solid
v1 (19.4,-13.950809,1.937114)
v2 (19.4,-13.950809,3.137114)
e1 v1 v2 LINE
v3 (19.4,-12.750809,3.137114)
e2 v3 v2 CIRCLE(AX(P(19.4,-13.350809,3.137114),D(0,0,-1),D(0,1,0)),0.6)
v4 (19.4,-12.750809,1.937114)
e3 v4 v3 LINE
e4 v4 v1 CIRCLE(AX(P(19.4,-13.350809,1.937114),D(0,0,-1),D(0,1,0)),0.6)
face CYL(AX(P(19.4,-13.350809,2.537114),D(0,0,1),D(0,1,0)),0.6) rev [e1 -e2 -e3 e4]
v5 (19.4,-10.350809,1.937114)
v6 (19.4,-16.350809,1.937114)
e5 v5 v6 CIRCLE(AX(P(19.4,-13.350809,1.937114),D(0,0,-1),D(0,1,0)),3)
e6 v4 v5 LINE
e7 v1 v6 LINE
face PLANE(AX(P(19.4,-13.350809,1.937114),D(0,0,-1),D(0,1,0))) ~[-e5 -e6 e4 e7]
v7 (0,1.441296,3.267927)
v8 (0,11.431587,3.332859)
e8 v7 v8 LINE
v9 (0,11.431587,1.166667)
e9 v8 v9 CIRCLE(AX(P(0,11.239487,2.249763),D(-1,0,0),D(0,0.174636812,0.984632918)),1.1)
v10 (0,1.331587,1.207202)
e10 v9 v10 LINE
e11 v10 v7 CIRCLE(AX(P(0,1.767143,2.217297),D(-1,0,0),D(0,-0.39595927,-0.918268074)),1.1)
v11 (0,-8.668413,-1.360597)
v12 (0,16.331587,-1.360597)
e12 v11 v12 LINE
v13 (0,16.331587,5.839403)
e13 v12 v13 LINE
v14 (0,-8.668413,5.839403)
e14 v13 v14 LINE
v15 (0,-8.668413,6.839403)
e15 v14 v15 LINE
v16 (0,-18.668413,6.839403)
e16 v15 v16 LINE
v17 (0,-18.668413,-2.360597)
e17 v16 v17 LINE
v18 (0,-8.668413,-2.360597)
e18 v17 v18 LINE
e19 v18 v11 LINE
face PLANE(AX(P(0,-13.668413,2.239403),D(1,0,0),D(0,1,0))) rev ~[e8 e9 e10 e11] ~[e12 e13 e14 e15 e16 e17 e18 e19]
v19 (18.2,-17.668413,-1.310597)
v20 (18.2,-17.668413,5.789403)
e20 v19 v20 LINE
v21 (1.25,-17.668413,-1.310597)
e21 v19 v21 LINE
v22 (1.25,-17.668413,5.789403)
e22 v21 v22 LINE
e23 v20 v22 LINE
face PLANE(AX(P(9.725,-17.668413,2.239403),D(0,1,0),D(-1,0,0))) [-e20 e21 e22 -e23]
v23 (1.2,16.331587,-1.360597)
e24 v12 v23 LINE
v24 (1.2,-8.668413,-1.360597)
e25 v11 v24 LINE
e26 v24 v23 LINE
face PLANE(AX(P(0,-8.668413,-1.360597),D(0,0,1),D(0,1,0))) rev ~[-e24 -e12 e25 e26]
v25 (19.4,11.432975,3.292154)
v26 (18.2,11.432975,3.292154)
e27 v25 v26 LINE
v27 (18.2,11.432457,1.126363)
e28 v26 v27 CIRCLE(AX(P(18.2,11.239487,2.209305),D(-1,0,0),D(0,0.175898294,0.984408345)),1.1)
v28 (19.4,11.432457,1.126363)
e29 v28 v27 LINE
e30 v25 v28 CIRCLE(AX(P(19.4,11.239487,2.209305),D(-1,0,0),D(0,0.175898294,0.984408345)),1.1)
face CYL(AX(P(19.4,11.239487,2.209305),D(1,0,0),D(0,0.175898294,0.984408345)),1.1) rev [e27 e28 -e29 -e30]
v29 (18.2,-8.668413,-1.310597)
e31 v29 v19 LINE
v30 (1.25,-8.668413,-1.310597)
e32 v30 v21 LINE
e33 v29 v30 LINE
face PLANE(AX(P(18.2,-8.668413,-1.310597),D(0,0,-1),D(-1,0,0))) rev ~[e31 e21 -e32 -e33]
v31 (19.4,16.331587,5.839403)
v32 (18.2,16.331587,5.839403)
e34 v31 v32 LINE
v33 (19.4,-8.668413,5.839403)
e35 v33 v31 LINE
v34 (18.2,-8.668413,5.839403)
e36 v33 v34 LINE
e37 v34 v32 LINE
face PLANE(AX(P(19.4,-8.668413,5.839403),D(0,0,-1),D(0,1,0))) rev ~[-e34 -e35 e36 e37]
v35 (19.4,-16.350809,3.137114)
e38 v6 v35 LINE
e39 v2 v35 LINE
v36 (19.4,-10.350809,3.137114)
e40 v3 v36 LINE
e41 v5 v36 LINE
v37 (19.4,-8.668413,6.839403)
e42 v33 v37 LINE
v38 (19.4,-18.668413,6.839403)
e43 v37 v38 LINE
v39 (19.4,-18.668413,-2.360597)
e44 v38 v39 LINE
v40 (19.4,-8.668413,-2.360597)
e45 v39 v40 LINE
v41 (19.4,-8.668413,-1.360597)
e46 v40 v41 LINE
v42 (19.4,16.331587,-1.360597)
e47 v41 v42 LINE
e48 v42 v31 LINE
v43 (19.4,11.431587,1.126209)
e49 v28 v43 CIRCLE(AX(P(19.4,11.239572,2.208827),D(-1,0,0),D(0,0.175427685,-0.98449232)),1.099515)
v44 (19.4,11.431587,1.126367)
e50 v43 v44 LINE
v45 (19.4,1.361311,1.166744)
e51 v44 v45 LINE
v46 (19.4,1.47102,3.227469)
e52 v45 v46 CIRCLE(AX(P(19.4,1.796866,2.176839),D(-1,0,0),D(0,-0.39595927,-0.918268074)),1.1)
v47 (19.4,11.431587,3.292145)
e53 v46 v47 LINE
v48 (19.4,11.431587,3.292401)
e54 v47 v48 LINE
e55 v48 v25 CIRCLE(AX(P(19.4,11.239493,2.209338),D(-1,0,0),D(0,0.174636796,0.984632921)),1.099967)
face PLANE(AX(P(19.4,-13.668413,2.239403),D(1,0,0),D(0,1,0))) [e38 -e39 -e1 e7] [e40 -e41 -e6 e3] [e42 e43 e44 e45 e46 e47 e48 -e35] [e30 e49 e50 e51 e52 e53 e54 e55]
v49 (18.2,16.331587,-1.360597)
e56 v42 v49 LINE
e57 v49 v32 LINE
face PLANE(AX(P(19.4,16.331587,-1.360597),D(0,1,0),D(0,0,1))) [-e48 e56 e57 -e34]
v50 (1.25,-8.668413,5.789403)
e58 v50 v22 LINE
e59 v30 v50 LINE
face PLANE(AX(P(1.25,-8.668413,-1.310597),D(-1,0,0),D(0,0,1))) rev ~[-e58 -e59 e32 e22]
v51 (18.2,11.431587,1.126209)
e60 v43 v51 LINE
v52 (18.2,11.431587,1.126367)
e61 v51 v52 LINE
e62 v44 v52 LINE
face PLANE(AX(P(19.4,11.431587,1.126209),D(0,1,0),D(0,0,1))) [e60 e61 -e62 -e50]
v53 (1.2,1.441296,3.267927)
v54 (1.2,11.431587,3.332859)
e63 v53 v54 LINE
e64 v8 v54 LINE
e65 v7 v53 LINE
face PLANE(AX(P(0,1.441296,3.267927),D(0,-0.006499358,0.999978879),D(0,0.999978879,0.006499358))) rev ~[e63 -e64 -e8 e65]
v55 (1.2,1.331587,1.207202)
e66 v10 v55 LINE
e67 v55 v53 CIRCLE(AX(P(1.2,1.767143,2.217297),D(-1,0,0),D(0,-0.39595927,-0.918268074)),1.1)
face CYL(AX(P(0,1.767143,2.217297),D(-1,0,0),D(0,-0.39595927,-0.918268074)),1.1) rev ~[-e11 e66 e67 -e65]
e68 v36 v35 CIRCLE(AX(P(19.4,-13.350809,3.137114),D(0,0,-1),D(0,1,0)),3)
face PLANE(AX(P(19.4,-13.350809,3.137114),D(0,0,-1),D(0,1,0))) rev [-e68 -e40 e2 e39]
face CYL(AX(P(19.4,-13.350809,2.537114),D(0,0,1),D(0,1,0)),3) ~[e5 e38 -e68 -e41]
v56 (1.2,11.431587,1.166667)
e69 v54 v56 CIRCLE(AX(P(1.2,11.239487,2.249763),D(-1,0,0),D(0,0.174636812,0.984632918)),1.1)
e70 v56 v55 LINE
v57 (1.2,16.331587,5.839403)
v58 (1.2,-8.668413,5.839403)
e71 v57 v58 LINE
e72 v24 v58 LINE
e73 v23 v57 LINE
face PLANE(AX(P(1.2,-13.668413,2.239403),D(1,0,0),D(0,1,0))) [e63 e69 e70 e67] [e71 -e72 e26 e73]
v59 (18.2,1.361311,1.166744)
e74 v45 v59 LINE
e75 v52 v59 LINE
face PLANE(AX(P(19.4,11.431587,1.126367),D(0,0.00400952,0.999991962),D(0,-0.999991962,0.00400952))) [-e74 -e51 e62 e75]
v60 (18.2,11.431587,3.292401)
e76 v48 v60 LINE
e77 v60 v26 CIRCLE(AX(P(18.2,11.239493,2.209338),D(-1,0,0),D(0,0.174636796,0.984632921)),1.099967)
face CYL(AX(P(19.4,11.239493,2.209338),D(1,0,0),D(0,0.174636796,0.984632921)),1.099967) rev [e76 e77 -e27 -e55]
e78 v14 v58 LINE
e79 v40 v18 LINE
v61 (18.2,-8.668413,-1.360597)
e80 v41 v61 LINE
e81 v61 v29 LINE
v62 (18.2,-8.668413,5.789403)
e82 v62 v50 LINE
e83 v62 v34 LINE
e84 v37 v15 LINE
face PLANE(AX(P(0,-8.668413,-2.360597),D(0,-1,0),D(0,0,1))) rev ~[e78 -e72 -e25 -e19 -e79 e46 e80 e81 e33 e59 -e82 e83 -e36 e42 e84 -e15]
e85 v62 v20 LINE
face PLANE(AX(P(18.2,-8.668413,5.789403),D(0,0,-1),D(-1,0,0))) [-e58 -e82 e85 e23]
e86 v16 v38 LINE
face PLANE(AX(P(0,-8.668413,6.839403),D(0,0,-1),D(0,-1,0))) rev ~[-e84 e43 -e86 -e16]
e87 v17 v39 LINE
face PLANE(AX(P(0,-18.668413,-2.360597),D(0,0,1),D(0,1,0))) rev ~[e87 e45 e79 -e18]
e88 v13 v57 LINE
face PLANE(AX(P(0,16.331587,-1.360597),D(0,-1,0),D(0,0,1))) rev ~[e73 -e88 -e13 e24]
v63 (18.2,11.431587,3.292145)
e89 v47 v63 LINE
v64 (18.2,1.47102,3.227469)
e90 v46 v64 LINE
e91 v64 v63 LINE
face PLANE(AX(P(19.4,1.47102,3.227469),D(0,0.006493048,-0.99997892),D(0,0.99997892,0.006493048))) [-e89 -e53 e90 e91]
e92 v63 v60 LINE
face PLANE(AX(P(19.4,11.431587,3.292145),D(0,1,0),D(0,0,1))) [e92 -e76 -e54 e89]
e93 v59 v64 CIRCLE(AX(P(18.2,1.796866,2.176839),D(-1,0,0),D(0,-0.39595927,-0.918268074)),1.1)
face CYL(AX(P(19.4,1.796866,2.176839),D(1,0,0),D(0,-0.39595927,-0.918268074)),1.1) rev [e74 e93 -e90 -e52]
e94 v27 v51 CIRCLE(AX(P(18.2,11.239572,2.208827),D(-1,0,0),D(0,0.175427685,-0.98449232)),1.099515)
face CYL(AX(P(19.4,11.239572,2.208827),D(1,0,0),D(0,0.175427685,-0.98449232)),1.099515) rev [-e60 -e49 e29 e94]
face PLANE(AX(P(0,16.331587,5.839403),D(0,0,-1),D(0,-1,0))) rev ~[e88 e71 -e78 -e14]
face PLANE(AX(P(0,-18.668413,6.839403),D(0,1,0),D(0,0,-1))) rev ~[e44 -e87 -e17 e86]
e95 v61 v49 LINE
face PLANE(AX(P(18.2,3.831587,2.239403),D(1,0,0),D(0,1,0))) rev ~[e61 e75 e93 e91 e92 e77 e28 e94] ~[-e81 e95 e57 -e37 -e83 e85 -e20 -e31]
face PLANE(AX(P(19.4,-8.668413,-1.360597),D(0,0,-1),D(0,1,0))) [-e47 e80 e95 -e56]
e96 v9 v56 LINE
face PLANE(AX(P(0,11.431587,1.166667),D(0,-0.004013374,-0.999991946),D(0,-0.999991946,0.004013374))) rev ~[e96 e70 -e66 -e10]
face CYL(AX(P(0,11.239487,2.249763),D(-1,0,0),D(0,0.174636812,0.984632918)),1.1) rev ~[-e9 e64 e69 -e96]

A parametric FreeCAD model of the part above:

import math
import FreeCAD as App
import Part
import Sketcher
Q = App.Units.Quantity


def add_polygon(sketch, points):
    """Adds a closed chain of lines whose ends are joined by coincident constraints."""
    first, n = sketch.GeometryCount, len(points)
    for a, b in zip(points, points[1:] + points[:1]):
        sketch.addGeometry(Part.LineSegment(App.Vector(*a, 0), App.Vector(*b, 0)), False)
    for i in range(n):
        sketch.addConstraint(Sketcher.Constraint("Coincident", first + i, 2, first + (i + 1) % n, 1))

doc = App.newDocument("Part")
body = doc.addObject("PartDesign::Body", "Body")

sketch1 = body.newObject("Sketcher::SketchObject", "Sketch")
sketch1.AttachmentSupport = (doc.getObject("YZ_Plane"), [""])
sketch1.MapMode = "FlatFace"
add_polygon(sketch1, [(-9, 7), (-19, 7), (-19, -2), (-9, -2)])
sketch1.addConstraint(Sketcher.Constraint("Horizontal", 0))
sketch1.addConstraint(Sketcher.Constraint("Vertical", 1))
sketch1.addConstraint(Sketcher.Constraint("Horizontal", 2))
sketch1.addConstraint(Sketcher.Constraint("Vertical", 3))
sketch1.addConstraint(Sketcher.Constraint("DistanceX", 0, 2, 0, 1, Q("10 mm")))
sketch1.addConstraint(Sketcher.Constraint("DistanceY", 1, 2, 1, 1, Q("9.2 mm")))
sketch1.addConstraint(Sketcher.Constraint("DistanceX", 0, 2, -1, 1, Q("18.668413 mm")))
sketch1.addConstraint(Sketcher.Constraint("DistanceY", -1, 1, 0, 2, Q("6.839403 mm")))
pad1 = body.newObject("PartDesign::Pad", "Pad")
pad1.Profile = sketch1
pad1.Length = 19.4

sketch2 = body.newObject("Sketcher::SketchObject", "Sketch001")
sketch2.AttachmentSupport = (doc.getObject("YZ_Plane"), [""])
sketch2.MapMode = "FlatFace"
add_polygon(sketch2, [(-8.7, 6.8), (-18.7, 6.8), (-18.7, -2.4), (-8.7, -2.4), (-8.7, -1.4), (16.3, -1.4), (16.3, 5.8), (-8.7, 5.8)])
sketch2.addGeometry(Part.LineSegment(App.Vector(11.4, 1.2, 0), App.Vector(1.3, 1.2, 0)), False)
sketch2.addGeometry(Part.ArcOfCircle(Part.Circle(App.Vector(1.8, 2.2, 0), App.Vector(0, 0, 1), 1.1), math.radians(107), math.radians(247)), False)
sketch2.addGeometry(Part.LineSegment(App.Vector(1.4, 3.3, 0), App.Vector(11.4, 3.3, 0)), False)
sketch2.addGeometry(Part.ArcOfCircle(Part.Circle(App.Vector(11.2, 2.2, 0), App.Vector(0, 0, 1), 1.1), math.radians(-80), math.radians(80)), False)
sketch2.addConstraint(Sketcher.Constraint("Coincident", 8, 2, 9, 2))
sketch2.addConstraint(Sketcher.Constraint("Coincident", 9, 1, 10, 1))
sketch2.addConstraint(Sketcher.Constraint("Coincident", 10, 2, 11, 2))
sketch2.addConstraint(Sketcher.Constraint("Coincident", 11, 1, 8, 1))
sketch2.addConstraint(Sketcher.Constraint("Horizontal", 0))
sketch2.addConstraint(Sketcher.Constraint("Vertical", 1))
sketch2.addConstraint(Sketcher.Constraint("Horizontal", 2))
sketch2.addConstraint(Sketcher.Constraint("Vertical", 3))
sketch2.addConstraint(Sketcher.Constraint("Horizontal", 4))
sketch2.addConstraint(Sketcher.Constraint("Vertical", 5))
sketch2.addConstraint(Sketcher.Constraint("Horizontal", 6))
sketch2.addConstraint(Sketcher.Constraint("Vertical", 7))
sketch2.addConstraint(Sketcher.Constraint("Equal", 9, 11))
sketch2.addConstraint(Sketcher.Constraint("Vertical", 3, 2, 6, 2))
sketch2.addConstraint(Sketcher.Constraint("Vertical", 10, 2, 11, 1))
sketch2.addConstraint(Sketcher.Constraint("Equal", 3, 7))
sketch2.addConstraint(Sketcher.Constraint("Radius", 9, Q("1.1 mm")))
sketch2.addConstraint(Sketcher.Constraint("DistanceX", 0, 2, 0, 1, Q("10 mm")))
sketch2.addConstraint(Sketcher.Constraint("DistanceX", 4, 1, 4, 2, Q("25 mm")))
sketch2.addConstraint(Sketcher.Constraint("DistanceY", 3, 1, 3, 2, Q("1 mm")))
sketch2.addConstraint(Sketcher.Constraint("DistanceY", 1, 2, 1, 1, Q("9.2 mm")))
sketch2.addConstraint(Sketcher.Constraint("DistanceX", 3, 2, 8, 2, Q("10 mm")))
sketch2.addConstraint(Sketcher.Constraint("DistanceX", 10, 2, 5, 2, Q("4.9 mm")))
sketch2.addConstraint(Sketcher.Constraint("DistanceX", 0, 2, 11, 3, Q("29.9079 mm")))
sketch2.addConstraint(Sketcher.Constraint("DistanceY", 3, 2, 8, 2, Q("2.5678 mm")))
sketch2.addConstraint(Sketcher.Constraint("DistanceY", -1, 1, 10, 2, Q("3.332859 mm")))
sketch2.addConstraint(Sketcher.Constraint("DistanceY", 11, 3, 0, 2, Q("4.58964 mm")))
sketch2.addConstraint(Sketcher.Constraint("DistanceY", 9, 3, 9, 1, Q("1.05063 mm")))
sketch2.addConstraint(Sketcher.Constraint("DistanceX", 8, 2, 9, 1, Q("0.109709 mm")))
sketch2.addConstraint(Sketcher.Constraint("DistanceX", -1, 1, 9, 3, Q("1.767143 mm")))
pad2 = body.newObject("PartDesign::Pad", "Pad001")
pad2.Profile = sketch2
pad2.Length = 1.2

sketch3 = body.newObject("Sketcher::SketchObject", "Sketch002")
sketch3.AttachmentSupport = (doc.getObject("YZ_Plane"), [""])
sketch3.MapMode = "FlatFace"
sketch3.AttachmentOffset = App.Placement(App.Vector(0, 0, 19.4), App.Rotation())
add_polygon(sketch3, [(-8.66841, 5.8394), (-8.66841, -1.3606), (16.33159, -1.3606), (16.33159, 5.8394)])
sketch3.addGeometry(Part.LineSegment(App.Vector(11.43159, 1.12637, 0), App.Vector(1.36131, 1.16674, 0)), False)
sketch3.addGeometry(Part.ArcOfCircle(Part.Circle(App.Vector(1.79687, 2.17684, 0), App.Vector(0, 0, 1), 1.1), math.radians(107), math.radians(247)), False)
sketch3.addGeometry(Part.LineSegment(App.Vector(1.47102, 3.22747, 0), App.Vector(11.43159, 3.29215, 0)), False)
sketch3.addGeometry(Part.LineSegment(App.Vector(11.43159, 3.29215, 0), App.Vector(11.43159, 3.2924, 0)), False)
sketch3.addGeometry(Part.ArcOfCircle(Part.Circle(App.Vector(11.23949, 2.20934, 0), App.Vector(0, 0, 1), 1.09997), math.radians(79.87), math.radians(79.94)), False)
sketch3.addGeometry(Part.ArcOfCircle(Part.Circle(App.Vector(11.23949, 2.2093, 0), App.Vector(0, 0, 1), 1.1), math.radians(-80), math.radians(80)), False)
sketch3.addGeometry(Part.ArcOfCircle(Part.Circle(App.Vector(11.23957, 2.20883, 0), App.Vector(0, 0, 1), 1.09951), math.radians(-79.94), math.radians(-79.9)), False)
sketch3.addGeometry(Part.LineSegment(App.Vector(11.43159, 1.12621, 0), App.Vector(11.43159, 1.12637, 0)), False)
sketch3.addConstraint(Sketcher.Constraint("Coincident", 4, 2, 5, 2))
sketch3.addConstraint(Sketcher.Constraint("Coincident", 5, 1, 6, 1))
sketch3.addConstraint(Sketcher.Constraint("Coincident", 6, 2, 7, 1))
sketch3.addConstraint(Sketcher.Constraint("Coincident", 7, 2, 8, 2))
sketch3.addConstraint(Sketcher.Constraint("Tangent", 8, 1, 9, 2))
sketch3.addConstraint(Sketcher.Constraint("Tangent", 9, 1, 10, 2))
sketch3.addConstraint(Sketcher.Constraint("Coincident", 10, 1, 11, 1))
sketch3.addConstraint(Sketcher.Constraint("Coincident", 11, 2, 4, 1))
sketch3.addConstraint(Sketcher.Constraint("Vertical", 0))
sketch3.addConstraint(Sketcher.Constraint("Horizontal", 1))
sketch3.addConstraint(Sketcher.Constraint("Vertical", 2))
sketch3.addConstraint(Sketcher.Constraint("Horizontal", 3))
sketch3.addConstraint(Sketcher.Constraint("Vertical", 7))
sketch3.addConstraint(Sketcher.Constraint("Vertical", 11))
sketch3.addConstraint(Sketcher.Constraint("Equal", 5, 9))
sketch3.addConstraint(Sketcher.Constraint("Vertical", 7, 2, 10, 1))
sketch3.addConstraint(Sketcher.Constraint("Radius", 5, Q("1.1 mm")))
sketch3.addConstraint(Sketcher.Constraint("DistanceX", 1, 1, 1, 2, Q("25 mm")))
sketch3.addConstraint(Sketcher.Constraint("DistanceY", 0, 2, 0, 1, Q("7.2 mm")))
sketch3.addConstraint(Sketcher.Constraint("DistanceX", 6, 2, 2, 2, Q("4.9 mm")))
sketch3.addConstraint(Sketcher.Constraint("Radius", 8, Q("1.099967 mm")))
sketch3.addConstraint(Sketcher.Constraint("Radius", 10, Q("1.099515 mm")))
sketch3.addConstraint(Sketcher.Constraint("DistanceY", 7, 2, 2, 2, Q("2.547002 mm")))
sketch3.addConstraint(Sketcher.Constraint("DistanceY", 11, 1, 11, 2, Q("0.000158 mm")))
sketch3.addConstraint(Sketcher.Constraint("DistanceY", -1, 1, 7, 2, Q("3.292401 mm")))
sketch3.addConstraint(Sketcher.Constraint("DistanceY", 5, 3, 8, 3, Q("0.032499 mm")))
sketch3.addConstraint(Sketcher.Constraint("DistanceX", 0, 2, 9, 3, Q("19.9079 mm")))
sketch3.addConstraint(Sketcher.Constraint("DistanceY", 7, 1, 7, 2, Q("0.000256 mm")))
sketch3.addConstraint(Sketcher.Constraint("DistanceX", -1, 1, 10, 3, Q("11.239572 mm")))
sketch3.addConstraint(Sketcher.Constraint("DistanceX", -1, 1, 4, 2, Q("1.361311 mm")))
sketch3.addConstraint(Sketcher.Constraint("DistanceX", -1, 1, 5, 1, Q("1.47102 mm")))
sketch3.addConstraint(Sketcher.Constraint("DistanceY", -1, 1, 5, 1, Q("3.227469 mm")))
sketch3.addConstraint(Sketcher.Constraint("DistanceX", 9, 3, 8, 1, Q("0.193488 mm")))
sketch3.addConstraint(Sketcher.Constraint("DistanceX", 9, 3, 9, 1, Q("0.19297 mm")))
pad3 = body.newObject("PartDesign::Pad", "Pad002")
pad3.Profile = sketch3
pad3.Length = 1.2
pad3.Reversed = True

sketch4 = body.newObject("Sketcher::SketchObject", "Sketch003")
sketch4.AttachmentSupport = (doc.getObject("XZ_Plane"), [""])
sketch4.MapMode = "FlatFace"
sketch4.AttachmentOffset = App.Placement(App.Vector(0, 0, 8.668413), App.Rotation())
add_polygon(sketch4, [(18, 6), (18, -1), (1, -1), (1, 6)])
sketch4.addConstraint(Sketcher.Constraint("Vertical", 0))
sketch4.addConstraint(Sketcher.Constraint("Horizontal", 1))
sketch4.addConstraint(Sketcher.Constraint("Vertical", 2))
sketch4.addConstraint(Sketcher.Constraint("Horizontal", 3))
sketch4.addConstraint(Sketcher.Constraint("DistanceY", 0, 2, 0, 1, Q("7.1 mm")))
sketch4.addConstraint(Sketcher.Constraint("DistanceX", 1, 2, 1, 1, Q("16.95 mm")))
sketch4.addConstraint(Sketcher.Constraint("DistanceX", -1, 1, 0, 2, Q("18.2 mm")))
sketch4.addConstraint(Sketcher.Constraint("DistanceY", 0, 2, -1, 1, Q("1.310597 mm")))
pocket1 = body.newObject("PartDesign::Pocket", "Pocket")
pocket1.Profile = sketch4
pocket1.Length = 9
pocket1.Reversed = True

sketch5 = body.newObject("Sketcher::SketchObject", "Sketch004")
sketch5.AttachmentSupport = (doc.getObject("YZ_Plane"), [""])
sketch5.MapMode = "FlatFace"
sketch5.AttachmentOffset = App.Placement(App.Vector(0, 0, 19.4), App.Rotation())
add_polygon(sketch5, [(-12.8, 3.1), (-12.8, 1.9), (-10.4, 1.9), (-10.4, 3.1)])
sketch5.addGeometry(Part.LineSegment(App.Vector(-13.4, 3.1, 0), App.Vector(-13.4, 1.9, 0)), True)
sketch5.addConstraint(Sketcher.Constraint("Vertical", 0))
sketch5.addConstraint(Sketcher.Constraint("Horizontal", 1))
sketch5.addConstraint(Sketcher.Constraint("Vertical", 2))
sketch5.addConstraint(Sketcher.Constraint("Horizontal", 3))
sketch5.addConstraint(Sketcher.Constraint("Vertical", 4))
sketch5.addConstraint(Sketcher.Constraint("Horizontal", 3, 2, 4, 1))
sketch5.addConstraint(Sketcher.Constraint("Horizontal", 1, 2, 4, 2))
sketch5.addConstraint(Sketcher.Constraint("DistanceX", 1, 1, 1, 2, Q("2.4 mm")))
sketch5.addConstraint(Sketcher.Constraint("DistanceY", 0, 2, 0, 1, Q("1.2 mm")))
sketch5.addConstraint(Sketcher.Constraint("DistanceX", 4, 1, 2, 2, Q("3 mm")))
sketch5.addConstraint(Sketcher.Constraint("DistanceX", 0, 2, -1, 1, Q("12.750809 mm")))
sketch5.addConstraint(Sketcher.Constraint("DistanceY", -1, 1, 0, 2, Q("1.937114 mm")))
revolution = body.newObject("PartDesign::Revolution", "Revolution")
revolution.Profile = sketch5
revolution.ReferenceAxis = (sketch5, ["Axis0"])
revolution.Angle = 180

doc.recompute()
